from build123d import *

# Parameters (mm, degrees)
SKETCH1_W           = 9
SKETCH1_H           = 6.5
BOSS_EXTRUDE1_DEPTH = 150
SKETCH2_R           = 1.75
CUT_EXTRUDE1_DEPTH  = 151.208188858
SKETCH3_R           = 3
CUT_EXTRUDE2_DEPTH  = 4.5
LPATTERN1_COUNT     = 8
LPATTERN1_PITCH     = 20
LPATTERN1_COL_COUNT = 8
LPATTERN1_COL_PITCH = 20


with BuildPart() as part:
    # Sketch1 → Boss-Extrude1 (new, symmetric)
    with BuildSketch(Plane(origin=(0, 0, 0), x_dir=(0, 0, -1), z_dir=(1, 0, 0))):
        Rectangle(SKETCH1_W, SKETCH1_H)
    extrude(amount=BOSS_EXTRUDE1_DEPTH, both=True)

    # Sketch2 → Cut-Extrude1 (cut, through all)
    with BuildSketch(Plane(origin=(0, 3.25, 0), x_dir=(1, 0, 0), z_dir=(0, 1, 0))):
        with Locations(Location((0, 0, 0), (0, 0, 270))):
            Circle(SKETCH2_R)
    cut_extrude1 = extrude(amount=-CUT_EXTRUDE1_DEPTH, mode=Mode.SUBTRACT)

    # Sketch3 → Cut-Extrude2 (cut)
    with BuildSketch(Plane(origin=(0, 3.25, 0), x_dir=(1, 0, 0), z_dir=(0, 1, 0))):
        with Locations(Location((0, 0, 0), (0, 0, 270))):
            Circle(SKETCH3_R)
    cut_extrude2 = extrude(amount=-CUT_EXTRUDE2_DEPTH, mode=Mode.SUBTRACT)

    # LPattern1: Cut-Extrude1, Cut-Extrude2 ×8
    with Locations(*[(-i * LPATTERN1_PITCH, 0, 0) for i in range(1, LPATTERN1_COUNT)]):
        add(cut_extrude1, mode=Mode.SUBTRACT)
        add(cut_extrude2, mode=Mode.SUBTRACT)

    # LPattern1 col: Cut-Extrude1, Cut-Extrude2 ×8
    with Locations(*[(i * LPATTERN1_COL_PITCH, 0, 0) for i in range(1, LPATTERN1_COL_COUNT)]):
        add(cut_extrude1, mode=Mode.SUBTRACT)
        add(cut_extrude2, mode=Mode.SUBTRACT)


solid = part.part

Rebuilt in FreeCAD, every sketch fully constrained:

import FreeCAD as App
import Part
import Sketcher

V = App.Vector
Q = App.Units.Quantity

doc = App.newDocument("Part")
body = doc.addObject("PartDesign::Body", "Body")

# Sketch on YZ plane
sketch1 = body.newObject("Sketcher::SketchObject", "Sketch")
sketch1.AttachmentSupport = (doc.getObject("YZ_Plane"), [""])
sketch1.MapMode = "FlatFace"
sketch1.addGeometry(Part.LineSegment(V(3.25, 4.5, 0), V(-3.25, 4.5, 0)), False)
sketch1.addGeometry(Part.LineSegment(V(-3.25, 4.5, 0), V(-3.25, -4.5, 0)), False)
sketch1.addGeometry(Part.LineSegment(V(-3.25, -4.5, 0), V(3.25, -4.5, 0)), False)
sketch1.addGeometry(Part.LineSegment(V(3.25, -4.5, 0), V(3.25, 4.5, 0)), False)
sketch1.addConstraint(Sketcher.Constraint("Coincident", 0, 2, 1, 1))
sketch1.addConstraint(Sketcher.Constraint("Coincident", 1, 2, 2, 1))
sketch1.addConstraint(Sketcher.Constraint("Coincident", 2, 2, 3, 1))
sketch1.addConstraint(Sketcher.Constraint("Coincident", 3, 2, 0, 1))
sketch1.addConstraint(Sketcher.Constraint("Horizontal", 0))
sketch1.addConstraint(Sketcher.Constraint("Vertical", 1))
sketch1.addConstraint(Sketcher.Constraint("Horizontal", 2))
sketch1.addConstraint(Sketcher.Constraint("Vertical", 3))
sketch1.addConstraint(Sketcher.Constraint("Symmetric", 0, 2, 2, 2, -1, 1))
sketch1.addConstraint(Sketcher.Constraint("DistanceY", 1, 2, 1, 1, Q("9 mm")))
sketch1.addConstraint(Sketcher.Constraint("DistanceX", 0, 2, 0, 1, Q("6.5 mm")))
pad1 = body.newObject("PartDesign::Pad", "Pad")
pad1.Profile = sketch1
pad1.Length = 300
pad1.Midplane = True

# Sketch on XZ plane
sketch2 = body.newObject("Sketcher::SketchObject", "Sketch001")
sketch2.AttachmentSupport = (doc.getObject("XZ_Plane"), [""])
sketch2.MapMode = "FlatFace"
sketch2.AttachmentOffset = App.Placement(V(0, 0, -3.25), App.Rotation())
sketch2.addGeometry(Part.Circle(V(0, 0, 0), V(0, 0, 1), 1.75), False)
sketch2.addConstraint(Sketcher.Constraint("Coincident", 0, 3, -1, 1))
sketch2.addConstraint(Sketcher.Constraint("Diameter", 0, Q("3.5 mm")))
pocket1 = body.newObject("PartDesign::Pocket", "Pocket")
pocket1.Profile = sketch2
pocket1.Type = "ThroughAll"
pocket1.Reversed = True

# Sketch on XZ plane
sketch3 = body.newObject("Sketcher::SketchObject", "Sketch002")
sketch3.AttachmentSupport = (doc.getObject("XZ_Plane"), [""])
sketch3.MapMode = "FlatFace"
sketch3.AttachmentOffset = App.Placement(V(0, 0, -3.25), App.Rotation())
sketch3.addGeometry(Part.Circle(V(0, 0, 0), V(0, 0, 1), 3), False)
sketch3.addConstraint(Sketcher.Constraint("Coincident", 0, 3, -1, 1))
sketch3.addConstraint(Sketcher.Constraint("Diameter", 0, Q("6 mm")))
pocket2 = body.newObject("PartDesign::Pocket", "Pocket001")
pocket2.Profile = sketch3
pocket2.Length = 4.5
pocket2.Reversed = True
doc.recompute()

linearpattern = body.newObject("PartDesign::LinearPattern", "LinearPattern")
linearpattern.Originals = [pocket1, pocket2]
linearpattern.Direction = (doc.getObject("X_Axis"), [""])
linearpattern.Mode = "offset"
linearpattern.Offset = 20
linearpattern.Occurrences = 8
linearpattern.Reversed = True
body.Tip = linearpattern
doc.recompute()

linearpattern2 = body.newObject("PartDesign::LinearPattern", "LinearPattern001")
linearpattern2.Originals = [pocket1, pocket2]
linearpattern2.Direction = (doc.getObject("X_Axis"), [""])
linearpattern2.Mode = "offset"
linearpattern2.Offset = 20
linearpattern2.Occurrences = 8
body.Tip = linearpattern2

doc.recompute()
